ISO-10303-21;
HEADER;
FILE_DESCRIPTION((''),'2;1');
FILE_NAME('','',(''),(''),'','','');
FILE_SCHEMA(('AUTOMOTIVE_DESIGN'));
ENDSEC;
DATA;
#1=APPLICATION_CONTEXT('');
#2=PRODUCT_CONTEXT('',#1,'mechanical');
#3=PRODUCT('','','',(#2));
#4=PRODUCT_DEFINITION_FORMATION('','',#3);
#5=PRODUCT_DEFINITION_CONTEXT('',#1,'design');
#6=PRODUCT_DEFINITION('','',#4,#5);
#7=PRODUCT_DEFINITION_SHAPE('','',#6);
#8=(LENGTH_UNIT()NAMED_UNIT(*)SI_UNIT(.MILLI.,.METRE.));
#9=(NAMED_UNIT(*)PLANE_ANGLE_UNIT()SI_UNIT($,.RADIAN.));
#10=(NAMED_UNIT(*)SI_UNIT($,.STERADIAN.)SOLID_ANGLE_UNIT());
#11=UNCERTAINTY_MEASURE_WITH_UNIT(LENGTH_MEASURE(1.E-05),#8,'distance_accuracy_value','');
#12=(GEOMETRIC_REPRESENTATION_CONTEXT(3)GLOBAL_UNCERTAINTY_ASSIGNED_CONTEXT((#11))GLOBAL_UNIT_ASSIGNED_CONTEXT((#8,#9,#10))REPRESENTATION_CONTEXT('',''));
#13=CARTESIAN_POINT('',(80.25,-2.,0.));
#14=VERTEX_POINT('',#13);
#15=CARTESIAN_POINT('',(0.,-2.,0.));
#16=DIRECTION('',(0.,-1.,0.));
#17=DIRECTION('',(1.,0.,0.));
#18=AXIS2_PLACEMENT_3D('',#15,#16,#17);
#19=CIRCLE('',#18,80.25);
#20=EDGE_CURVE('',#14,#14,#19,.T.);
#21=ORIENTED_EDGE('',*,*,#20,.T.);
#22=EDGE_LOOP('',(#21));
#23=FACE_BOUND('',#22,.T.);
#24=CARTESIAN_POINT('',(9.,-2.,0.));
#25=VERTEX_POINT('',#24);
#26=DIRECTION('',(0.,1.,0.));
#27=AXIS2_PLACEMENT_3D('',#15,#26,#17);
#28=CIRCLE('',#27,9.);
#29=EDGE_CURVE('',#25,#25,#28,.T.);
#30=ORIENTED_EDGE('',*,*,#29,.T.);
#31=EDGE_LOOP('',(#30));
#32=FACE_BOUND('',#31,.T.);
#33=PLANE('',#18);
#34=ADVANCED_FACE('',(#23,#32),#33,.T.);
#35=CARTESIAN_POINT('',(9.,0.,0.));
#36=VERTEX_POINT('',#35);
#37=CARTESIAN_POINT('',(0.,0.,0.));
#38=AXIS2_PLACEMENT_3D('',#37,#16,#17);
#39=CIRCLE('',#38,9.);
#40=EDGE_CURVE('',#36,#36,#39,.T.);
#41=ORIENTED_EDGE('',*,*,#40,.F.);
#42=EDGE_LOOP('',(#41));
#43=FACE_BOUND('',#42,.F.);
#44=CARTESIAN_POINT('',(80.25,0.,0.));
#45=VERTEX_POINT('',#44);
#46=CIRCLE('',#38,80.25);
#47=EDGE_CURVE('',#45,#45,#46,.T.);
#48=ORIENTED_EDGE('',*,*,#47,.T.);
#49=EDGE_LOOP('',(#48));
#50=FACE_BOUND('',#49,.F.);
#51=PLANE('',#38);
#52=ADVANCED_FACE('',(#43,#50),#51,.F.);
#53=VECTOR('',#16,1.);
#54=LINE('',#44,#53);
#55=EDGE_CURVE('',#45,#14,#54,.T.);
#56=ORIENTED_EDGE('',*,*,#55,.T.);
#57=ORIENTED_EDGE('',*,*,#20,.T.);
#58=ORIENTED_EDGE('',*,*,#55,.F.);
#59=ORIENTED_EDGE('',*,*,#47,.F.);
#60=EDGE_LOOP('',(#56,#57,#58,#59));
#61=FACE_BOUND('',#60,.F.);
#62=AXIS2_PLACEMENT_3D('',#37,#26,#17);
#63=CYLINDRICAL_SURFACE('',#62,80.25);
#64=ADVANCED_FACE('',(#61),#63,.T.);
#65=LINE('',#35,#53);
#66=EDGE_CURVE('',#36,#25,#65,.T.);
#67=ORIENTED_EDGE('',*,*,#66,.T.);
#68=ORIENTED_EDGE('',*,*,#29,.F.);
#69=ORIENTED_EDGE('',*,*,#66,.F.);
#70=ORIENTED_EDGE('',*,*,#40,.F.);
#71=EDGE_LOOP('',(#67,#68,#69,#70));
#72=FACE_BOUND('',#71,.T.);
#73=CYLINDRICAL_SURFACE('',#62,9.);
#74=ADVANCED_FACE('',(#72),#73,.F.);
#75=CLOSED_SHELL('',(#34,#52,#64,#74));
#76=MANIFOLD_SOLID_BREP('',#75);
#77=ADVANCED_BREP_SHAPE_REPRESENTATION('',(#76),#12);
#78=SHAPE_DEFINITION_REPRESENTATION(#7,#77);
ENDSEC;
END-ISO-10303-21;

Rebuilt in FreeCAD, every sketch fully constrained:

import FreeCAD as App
import Part
import Sketcher

V = App.Vector

doc = App.newDocument("Part")
body = doc.addObject("PartDesign::Body", "Body")

# Sketch on XZ plane
sketch1 = body.newObject("Sketcher::SketchObject", "Sketch")
sketch1.AttachmentSupport = (doc.getObject("XZ_Plane"), [""])
sketch1.MapMode = "FlatFace"
sketch1.addGeometry(Part.Circle(V(0, 0, 0), V(0, 0, 1), 80), False)
sketch1.addConstraint([
    Sketcher.Constraint("Coincident", 0, 3, -1, 1),
    Sketcher.Constraint("Diameter", 0, 160.5),
])
pad1 = body.newObject("PartDesign::Pad", "Pad")
pad1.Profile = sketch1
pad1.Length = 2

# Sketch on XZ plane
sketch2 = body.newObject("Sketcher::SketchObject", "Sketch001")
sketch2.AttachmentSupport = (doc.getObject("XZ_Plane"), [""])
sketch2.MapMode = "FlatFace"
sketch2.addGeometry(Part.Circle(V(0, 0, 0), V(0, 0, 1), 9), False)
sketch2.addConstraint([
    Sketcher.Constraint("Coincident", 0, 3, -1, 1),
    Sketcher.Constraint("Diameter", 0, 18.0),
])
pocket1 = body.newObject("PartDesign::Pocket", "Pocket")
pocket1.Profile = sketch2
pocket1.Type = "ThroughAll"
pocket1.Midplane = True

doc.recompute()
